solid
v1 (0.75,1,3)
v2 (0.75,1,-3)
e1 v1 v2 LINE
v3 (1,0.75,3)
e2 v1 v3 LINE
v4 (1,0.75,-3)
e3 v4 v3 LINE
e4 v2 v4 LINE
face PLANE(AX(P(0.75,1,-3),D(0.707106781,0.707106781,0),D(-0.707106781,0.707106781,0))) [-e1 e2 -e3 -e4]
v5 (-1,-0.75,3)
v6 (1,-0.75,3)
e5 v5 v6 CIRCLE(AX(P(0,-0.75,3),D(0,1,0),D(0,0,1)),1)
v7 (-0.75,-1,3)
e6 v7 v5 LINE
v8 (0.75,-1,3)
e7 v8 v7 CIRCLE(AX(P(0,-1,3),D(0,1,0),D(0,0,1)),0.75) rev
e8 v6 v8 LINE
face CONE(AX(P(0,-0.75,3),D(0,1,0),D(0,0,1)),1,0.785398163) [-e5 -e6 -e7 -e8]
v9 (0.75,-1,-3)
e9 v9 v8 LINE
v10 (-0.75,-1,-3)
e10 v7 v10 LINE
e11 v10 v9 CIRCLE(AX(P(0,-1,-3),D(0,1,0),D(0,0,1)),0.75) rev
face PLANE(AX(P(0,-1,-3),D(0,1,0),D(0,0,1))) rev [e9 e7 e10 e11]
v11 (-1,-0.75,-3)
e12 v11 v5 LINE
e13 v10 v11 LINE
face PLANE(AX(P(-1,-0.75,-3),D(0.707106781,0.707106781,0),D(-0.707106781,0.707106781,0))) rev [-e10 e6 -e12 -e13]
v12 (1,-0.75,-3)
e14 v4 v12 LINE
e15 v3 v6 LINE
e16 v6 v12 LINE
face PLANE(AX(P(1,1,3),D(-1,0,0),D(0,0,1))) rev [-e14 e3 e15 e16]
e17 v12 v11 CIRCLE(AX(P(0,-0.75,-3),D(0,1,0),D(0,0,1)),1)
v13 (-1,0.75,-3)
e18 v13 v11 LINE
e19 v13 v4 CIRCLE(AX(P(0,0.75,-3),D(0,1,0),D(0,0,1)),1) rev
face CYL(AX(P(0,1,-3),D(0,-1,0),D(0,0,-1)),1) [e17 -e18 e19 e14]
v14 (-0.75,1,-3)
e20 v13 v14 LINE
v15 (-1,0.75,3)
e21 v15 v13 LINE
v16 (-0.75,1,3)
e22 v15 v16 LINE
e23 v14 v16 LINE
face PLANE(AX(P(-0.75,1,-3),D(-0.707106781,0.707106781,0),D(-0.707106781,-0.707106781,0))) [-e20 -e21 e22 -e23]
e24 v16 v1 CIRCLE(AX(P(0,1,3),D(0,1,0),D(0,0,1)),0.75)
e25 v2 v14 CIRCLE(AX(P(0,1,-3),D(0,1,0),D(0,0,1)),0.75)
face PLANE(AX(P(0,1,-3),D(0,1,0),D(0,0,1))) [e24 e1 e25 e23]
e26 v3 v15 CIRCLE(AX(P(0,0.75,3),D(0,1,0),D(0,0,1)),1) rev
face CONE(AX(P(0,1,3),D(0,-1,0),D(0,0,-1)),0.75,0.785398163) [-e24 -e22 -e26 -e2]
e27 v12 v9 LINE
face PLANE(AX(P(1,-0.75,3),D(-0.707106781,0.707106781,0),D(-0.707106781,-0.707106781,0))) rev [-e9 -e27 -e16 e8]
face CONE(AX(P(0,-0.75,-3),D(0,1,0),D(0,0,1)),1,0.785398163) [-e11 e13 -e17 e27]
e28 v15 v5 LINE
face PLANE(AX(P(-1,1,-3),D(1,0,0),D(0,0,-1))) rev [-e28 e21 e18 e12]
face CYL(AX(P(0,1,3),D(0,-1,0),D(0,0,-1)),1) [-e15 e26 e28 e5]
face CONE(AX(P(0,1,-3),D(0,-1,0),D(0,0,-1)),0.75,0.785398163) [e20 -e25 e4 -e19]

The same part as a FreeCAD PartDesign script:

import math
import FreeCAD as App
import Part
import Sketcher
from FreeCAD import Vector


def edges_at(feature, points):
    """Names of the edges that pass closest to the given points."""
    edges = feature.Shape.Edges
    near = lambda p: min(range(len(edges)), key=lambda i: edges[i].distToShape(Part.Vertex(*p))[0])
    return sorted({f"Edge{near(p) + 1}" for p in points})

doc = App.newDocument("Part")
body = doc.addObject("PartDesign::Body", "Body")

# Sketch on XZ plane
sketch1 = body.newObject("Sketcher::SketchObject", "Sketch")
sketch1.AttachmentSupport = (doc.getObject("XZ_Plane"), [""])
sketch1.MapMode = "FlatFace"
sketch1.addGeometry([
    Part.LineSegment(Vector(-1, -3, 0), Vector(-1, 3, 0)),
    Part.ArcOfCircle(Part.Circle(Vector(0, 3, 0), Vector(0, 0, 1), 1), math.radians(0), math.radians(180)),
    Part.LineSegment(Vector(1, 3, 0), Vector(1, -3, 0)),
    Part.ArcOfCircle(Part.Circle(Vector(0, -3, 0), Vector(0, 0, 1), 1), math.radians(180), math.radians(360)),
], False)
sketch1.addConstraint([
    Sketcher.Constraint("Tangent", 0, 2, 1, 2),
    Sketcher.Constraint("Tangent", 1, 1, 2, 1),
    Sketcher.Constraint("Tangent", 2, 2, 3, 2),
    Sketcher.Constraint("Tangent", 3, 1, 0, 1),
    Sketcher.Constraint("Vertical", 0),
    Sketcher.Constraint("Vertical", 2),
    Sketcher.Constraint("Symmetric", 1, 3, 3, 3, -1, 1),
    Sketcher.Constraint("Radius", 1, 1.0),
    Sketcher.Constraint("DistanceY", 0, 1, 0, 2, 6.0),
])
pad1 = body.newObject("PartDesign::Pad", "Pad")
pad1.Profile = sketch1
pad1.Length = 2
pad1.Midplane = True
doc.recompute()

chamfer = body.newObject("PartDesign::Chamfer", "Chamfer")
chamfer.Base = (pad1, edges_at(pad1, [
    (0, 1, 4),
    (1, 1, 0),
    (0, 1, -4),
    (1, -1, 0),
    (0, -1, 4),
    (-1, -1, 0),
    (0, -1, -4),
    (-1, 1, 0),
]))
chamfer.Size = 0.25

doc.recompute()
